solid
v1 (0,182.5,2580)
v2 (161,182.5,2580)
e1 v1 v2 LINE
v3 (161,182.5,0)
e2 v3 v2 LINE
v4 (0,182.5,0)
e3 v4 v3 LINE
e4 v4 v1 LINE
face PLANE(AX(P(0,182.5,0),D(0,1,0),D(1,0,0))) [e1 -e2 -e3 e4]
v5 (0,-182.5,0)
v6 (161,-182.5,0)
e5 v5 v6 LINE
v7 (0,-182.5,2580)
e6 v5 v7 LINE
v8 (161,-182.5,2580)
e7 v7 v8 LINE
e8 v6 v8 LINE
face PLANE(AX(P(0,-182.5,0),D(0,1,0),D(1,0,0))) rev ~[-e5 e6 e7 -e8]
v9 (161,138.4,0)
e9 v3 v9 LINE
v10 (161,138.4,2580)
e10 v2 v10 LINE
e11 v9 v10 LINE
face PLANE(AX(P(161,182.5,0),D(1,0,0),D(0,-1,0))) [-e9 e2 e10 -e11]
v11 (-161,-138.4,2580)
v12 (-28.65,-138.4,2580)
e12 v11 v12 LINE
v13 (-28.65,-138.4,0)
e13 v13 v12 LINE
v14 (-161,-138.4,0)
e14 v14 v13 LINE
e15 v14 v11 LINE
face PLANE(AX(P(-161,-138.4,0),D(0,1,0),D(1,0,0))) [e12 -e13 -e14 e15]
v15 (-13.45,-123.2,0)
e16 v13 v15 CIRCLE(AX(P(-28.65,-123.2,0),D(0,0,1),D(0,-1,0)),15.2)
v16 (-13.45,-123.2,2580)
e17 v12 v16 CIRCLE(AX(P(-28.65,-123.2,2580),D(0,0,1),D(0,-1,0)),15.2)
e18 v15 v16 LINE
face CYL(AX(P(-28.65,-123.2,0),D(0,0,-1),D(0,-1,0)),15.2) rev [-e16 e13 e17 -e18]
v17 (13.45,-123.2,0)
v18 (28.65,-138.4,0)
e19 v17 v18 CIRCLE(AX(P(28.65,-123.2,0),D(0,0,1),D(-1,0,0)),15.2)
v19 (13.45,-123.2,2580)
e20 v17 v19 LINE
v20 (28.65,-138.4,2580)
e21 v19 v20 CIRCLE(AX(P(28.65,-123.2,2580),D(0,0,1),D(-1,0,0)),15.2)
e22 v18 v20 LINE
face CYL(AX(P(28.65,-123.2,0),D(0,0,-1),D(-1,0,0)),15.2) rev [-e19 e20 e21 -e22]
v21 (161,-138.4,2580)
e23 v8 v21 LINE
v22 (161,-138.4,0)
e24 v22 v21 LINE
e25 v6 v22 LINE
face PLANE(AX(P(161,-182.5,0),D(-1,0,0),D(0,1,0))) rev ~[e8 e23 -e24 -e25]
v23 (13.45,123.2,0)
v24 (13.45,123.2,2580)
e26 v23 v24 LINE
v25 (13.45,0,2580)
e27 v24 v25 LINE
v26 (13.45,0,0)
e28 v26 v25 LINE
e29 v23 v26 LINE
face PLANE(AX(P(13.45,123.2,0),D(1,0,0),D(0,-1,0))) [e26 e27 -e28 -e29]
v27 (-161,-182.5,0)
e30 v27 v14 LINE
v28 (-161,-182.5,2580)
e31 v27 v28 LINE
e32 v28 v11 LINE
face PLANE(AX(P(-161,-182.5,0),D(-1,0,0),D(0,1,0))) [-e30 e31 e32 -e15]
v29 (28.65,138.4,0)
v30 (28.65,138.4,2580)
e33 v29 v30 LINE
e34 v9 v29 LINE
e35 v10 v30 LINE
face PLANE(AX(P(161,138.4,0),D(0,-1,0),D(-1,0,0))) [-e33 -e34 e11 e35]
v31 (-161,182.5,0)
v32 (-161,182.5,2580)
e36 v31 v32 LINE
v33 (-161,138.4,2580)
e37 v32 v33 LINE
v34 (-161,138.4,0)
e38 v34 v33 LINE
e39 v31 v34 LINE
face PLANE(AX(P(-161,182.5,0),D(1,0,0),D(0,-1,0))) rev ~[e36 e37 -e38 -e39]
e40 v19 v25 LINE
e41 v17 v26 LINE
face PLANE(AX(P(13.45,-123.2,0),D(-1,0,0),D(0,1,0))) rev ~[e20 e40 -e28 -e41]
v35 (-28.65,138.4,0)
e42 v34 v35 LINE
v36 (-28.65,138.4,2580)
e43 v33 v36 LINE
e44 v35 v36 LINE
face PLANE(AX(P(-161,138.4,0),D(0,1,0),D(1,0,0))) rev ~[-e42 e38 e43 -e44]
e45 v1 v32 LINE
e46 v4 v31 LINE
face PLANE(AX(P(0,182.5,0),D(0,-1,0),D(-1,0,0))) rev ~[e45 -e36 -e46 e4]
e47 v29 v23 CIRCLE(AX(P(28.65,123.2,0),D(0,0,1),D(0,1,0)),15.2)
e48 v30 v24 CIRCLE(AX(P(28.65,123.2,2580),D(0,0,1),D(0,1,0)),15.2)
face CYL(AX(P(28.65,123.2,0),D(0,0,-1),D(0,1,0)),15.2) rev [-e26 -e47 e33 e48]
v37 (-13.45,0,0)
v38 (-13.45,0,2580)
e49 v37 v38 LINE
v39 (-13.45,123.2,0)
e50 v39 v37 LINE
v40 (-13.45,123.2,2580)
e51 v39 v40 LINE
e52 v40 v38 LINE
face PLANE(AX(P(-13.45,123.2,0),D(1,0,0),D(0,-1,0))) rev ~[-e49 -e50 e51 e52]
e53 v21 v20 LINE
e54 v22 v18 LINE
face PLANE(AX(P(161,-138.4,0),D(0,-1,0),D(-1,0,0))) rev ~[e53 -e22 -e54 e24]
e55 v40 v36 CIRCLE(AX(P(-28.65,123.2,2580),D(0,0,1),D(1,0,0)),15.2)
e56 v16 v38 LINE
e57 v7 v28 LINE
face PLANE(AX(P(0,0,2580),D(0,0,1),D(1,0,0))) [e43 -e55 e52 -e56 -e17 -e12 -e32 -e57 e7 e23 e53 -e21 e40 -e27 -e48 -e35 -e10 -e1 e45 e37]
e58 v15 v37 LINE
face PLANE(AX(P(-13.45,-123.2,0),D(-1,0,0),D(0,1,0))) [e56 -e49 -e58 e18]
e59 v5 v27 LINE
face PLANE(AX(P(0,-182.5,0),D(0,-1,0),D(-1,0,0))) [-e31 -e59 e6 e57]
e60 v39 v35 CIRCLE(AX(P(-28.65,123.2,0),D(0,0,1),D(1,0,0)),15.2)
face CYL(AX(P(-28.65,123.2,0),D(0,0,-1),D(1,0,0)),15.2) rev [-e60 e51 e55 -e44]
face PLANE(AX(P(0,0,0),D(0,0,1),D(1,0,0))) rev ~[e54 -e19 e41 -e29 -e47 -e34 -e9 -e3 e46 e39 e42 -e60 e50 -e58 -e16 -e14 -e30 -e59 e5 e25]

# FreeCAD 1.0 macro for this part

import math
import FreeCAD as App
import Part
import Sketcher
from FreeCAD import Vector

doc = App.newDocument("Part")
params = doc.addObject("Spreadsheet::Sheet", "Params")
for row, (alias, value) in enumerate([
    ("sketch1_radius", "15.2 mm"),
    ("sketch1_height", "44.1 mm"),
    ("pad1_length", "2580 mm"),
], start=1):
    params.set(f"A{row}", alias)
    params.set(f"B{row}", "=" + value)
    params.setAlias(f"B{row}", alias)

body = doc.addObject("PartDesign::Body", "Body")

# Sketch on XY plane
sketch1 = body.newObject("Sketcher::SketchObject", "Sketch")
sketch1.AttachmentSupport = (doc.getObject("XY_Plane"), [""])
sketch1.MapMode = "FlatFace"
sketch1.addGeometry([
    Part.LineSegment(Vector(-161, -138, 0), Vector(-161, -182, 0)),  # 0
    Part.LineSegment(Vector(-161, -182, 0), Vector(161, -182, 0)),  # 1
    Part.LineSegment(Vector(161, -182, 0), Vector(161, -138, 0)),  # 2
    Part.LineSegment(Vector(161, -138, 0), Vector(29, -138, 0)),  # 3
    Part.ArcOfCircle(Part.Circle(Vector(29, -123, 0), Vector(0, 0, 1), 15), math.radians(180), math.radians(270)),  # 4
    Part.LineSegment(Vector(13, -123, 0), Vector(13, 123, 0)),  # 5
    Part.ArcOfCircle(Part.Circle(Vector(29, 123, 0), Vector(0, 0, 1), 15), math.radians(90), math.radians(180)),  # 6
    Part.LineSegment(Vector(29, 138, 0), Vector(161, 138, 0)),  # 7
    Part.LineSegment(Vector(161, 138, 0), Vector(161, 182, 0)),  # 8
    Part.LineSegment(Vector(161, 182, 0), Vector(-161, 182, 0)),  # 9
    Part.LineSegment(Vector(-161, 182, 0), Vector(-161, 138, 0)),  # 10
    Part.LineSegment(Vector(-161, 138, 0), Vector(-29, 138, 0)),  # 11
    Part.ArcOfCircle(Part.Circle(Vector(-29, 123, 0), Vector(0, 0, 1), 15), math.radians(0), math.radians(90)),  # 12
    Part.LineSegment(Vector(-13, 123, 0), Vector(-13, -123, 0)),  # 13
    Part.ArcOfCircle(Part.Circle(Vector(-29, -123, 0), Vector(0, 0, 1), 15), math.radians(-90), math.radians(0)),  # 14
    Part.LineSegment(Vector(-29, -138, 0), Vector(-161, -138, 0)),  # 15
], False)
sketch1.addConstraint([
    Sketcher.Constraint("Coincident", 0, 2, 1, 1),
    Sketcher.Constraint("Coincident", 1, 2, 2, 1),
    Sketcher.Constraint("Coincident", 2, 2, 3, 1),
    Sketcher.Constraint("Tangent", 3, 2, 4, 2),
    Sketcher.Constraint("Tangent", 4, 1, 5, 1),
    Sketcher.Constraint("Tangent", 5, 2, 6, 2),
    Sketcher.Constraint("Tangent", 6, 1, 7, 1),
    Sketcher.Constraint("Coincident", 7, 2, 8, 1),
    Sketcher.Constraint("Coincident", 8, 2, 9, 1),
    Sketcher.Constraint("Coincident", 9, 2, 10, 1),
    Sketcher.Constraint("Coincident", 10, 2, 11, 1),
    Sketcher.Constraint("Tangent", 11, 2, 12, 2),
    Sketcher.Constraint("Tangent", 12, 1, 13, 1),
    Sketcher.Constraint("Tangent", 13, 2, 14, 2),
    Sketcher.Constraint("Tangent", 14, 1, 15, 1),
    Sketcher.Constraint("Coincident", 15, 2, 0, 1),
    Sketcher.Constraint("Vertical", 0),
    Sketcher.Constraint("Horizontal", 1),
    Sketcher.Constraint("Vertical", 2),
    Sketcher.Constraint("Horizontal", 3),
    Sketcher.Constraint("Vertical", 5),
    Sketcher.Constraint("Horizontal", 7),
    Sketcher.Constraint("Vertical", 8),
    Sketcher.Constraint("Horizontal", 9),
    Sketcher.Constraint("Vertical", 10),
    Sketcher.Constraint("Horizontal", 11),
    Sketcher.Constraint("Vertical", 13),
    Sketcher.Constraint("Horizontal", 15),
    Sketcher.Constraint("Equal", 4, 6),
    Sketcher.Constraint("Equal", 6, 12),
    Sketcher.Constraint("Equal", 12, 14),
    Sketcher.Constraint("Symmetric", 4, 3, 12, 3, -1, 1),
    Sketcher.Constraint("Symmetric", 0, 2, 8, 2, -1, 1),
    Sketcher.Constraint("Symmetric", 7, 2, 10, 2, -2),
    Sketcher.Constraint("Symmetric", 2, 2, 15, 2, -2),
    Sketcher.Constraint("Radius", 4, 15.2),
    Sketcher.Constraint("DistanceY", 0, 2, 0, 1, 44.1),
    Sketcher.Constraint("DistanceX", 0, 2, -1, 1, 161.0),
    Sketcher.Constraint("DistanceY", 0, 2, -1, 1, 182.5),
    Sketcher.Constraint("DistanceX", -1, 1, 4, 1, 13.45),
])
sketch1.setExpression("Constraints[35]", "Params.sketch1_radius")
sketch1.setExpression("Constraints[36]", "Params.sketch1_height")
pad1 = body.newObject("PartDesign::Pad", "Pad")
pad1.Profile = sketch1
pad1.setExpression("Length", "Params.pad1_length")

doc.recompute()
